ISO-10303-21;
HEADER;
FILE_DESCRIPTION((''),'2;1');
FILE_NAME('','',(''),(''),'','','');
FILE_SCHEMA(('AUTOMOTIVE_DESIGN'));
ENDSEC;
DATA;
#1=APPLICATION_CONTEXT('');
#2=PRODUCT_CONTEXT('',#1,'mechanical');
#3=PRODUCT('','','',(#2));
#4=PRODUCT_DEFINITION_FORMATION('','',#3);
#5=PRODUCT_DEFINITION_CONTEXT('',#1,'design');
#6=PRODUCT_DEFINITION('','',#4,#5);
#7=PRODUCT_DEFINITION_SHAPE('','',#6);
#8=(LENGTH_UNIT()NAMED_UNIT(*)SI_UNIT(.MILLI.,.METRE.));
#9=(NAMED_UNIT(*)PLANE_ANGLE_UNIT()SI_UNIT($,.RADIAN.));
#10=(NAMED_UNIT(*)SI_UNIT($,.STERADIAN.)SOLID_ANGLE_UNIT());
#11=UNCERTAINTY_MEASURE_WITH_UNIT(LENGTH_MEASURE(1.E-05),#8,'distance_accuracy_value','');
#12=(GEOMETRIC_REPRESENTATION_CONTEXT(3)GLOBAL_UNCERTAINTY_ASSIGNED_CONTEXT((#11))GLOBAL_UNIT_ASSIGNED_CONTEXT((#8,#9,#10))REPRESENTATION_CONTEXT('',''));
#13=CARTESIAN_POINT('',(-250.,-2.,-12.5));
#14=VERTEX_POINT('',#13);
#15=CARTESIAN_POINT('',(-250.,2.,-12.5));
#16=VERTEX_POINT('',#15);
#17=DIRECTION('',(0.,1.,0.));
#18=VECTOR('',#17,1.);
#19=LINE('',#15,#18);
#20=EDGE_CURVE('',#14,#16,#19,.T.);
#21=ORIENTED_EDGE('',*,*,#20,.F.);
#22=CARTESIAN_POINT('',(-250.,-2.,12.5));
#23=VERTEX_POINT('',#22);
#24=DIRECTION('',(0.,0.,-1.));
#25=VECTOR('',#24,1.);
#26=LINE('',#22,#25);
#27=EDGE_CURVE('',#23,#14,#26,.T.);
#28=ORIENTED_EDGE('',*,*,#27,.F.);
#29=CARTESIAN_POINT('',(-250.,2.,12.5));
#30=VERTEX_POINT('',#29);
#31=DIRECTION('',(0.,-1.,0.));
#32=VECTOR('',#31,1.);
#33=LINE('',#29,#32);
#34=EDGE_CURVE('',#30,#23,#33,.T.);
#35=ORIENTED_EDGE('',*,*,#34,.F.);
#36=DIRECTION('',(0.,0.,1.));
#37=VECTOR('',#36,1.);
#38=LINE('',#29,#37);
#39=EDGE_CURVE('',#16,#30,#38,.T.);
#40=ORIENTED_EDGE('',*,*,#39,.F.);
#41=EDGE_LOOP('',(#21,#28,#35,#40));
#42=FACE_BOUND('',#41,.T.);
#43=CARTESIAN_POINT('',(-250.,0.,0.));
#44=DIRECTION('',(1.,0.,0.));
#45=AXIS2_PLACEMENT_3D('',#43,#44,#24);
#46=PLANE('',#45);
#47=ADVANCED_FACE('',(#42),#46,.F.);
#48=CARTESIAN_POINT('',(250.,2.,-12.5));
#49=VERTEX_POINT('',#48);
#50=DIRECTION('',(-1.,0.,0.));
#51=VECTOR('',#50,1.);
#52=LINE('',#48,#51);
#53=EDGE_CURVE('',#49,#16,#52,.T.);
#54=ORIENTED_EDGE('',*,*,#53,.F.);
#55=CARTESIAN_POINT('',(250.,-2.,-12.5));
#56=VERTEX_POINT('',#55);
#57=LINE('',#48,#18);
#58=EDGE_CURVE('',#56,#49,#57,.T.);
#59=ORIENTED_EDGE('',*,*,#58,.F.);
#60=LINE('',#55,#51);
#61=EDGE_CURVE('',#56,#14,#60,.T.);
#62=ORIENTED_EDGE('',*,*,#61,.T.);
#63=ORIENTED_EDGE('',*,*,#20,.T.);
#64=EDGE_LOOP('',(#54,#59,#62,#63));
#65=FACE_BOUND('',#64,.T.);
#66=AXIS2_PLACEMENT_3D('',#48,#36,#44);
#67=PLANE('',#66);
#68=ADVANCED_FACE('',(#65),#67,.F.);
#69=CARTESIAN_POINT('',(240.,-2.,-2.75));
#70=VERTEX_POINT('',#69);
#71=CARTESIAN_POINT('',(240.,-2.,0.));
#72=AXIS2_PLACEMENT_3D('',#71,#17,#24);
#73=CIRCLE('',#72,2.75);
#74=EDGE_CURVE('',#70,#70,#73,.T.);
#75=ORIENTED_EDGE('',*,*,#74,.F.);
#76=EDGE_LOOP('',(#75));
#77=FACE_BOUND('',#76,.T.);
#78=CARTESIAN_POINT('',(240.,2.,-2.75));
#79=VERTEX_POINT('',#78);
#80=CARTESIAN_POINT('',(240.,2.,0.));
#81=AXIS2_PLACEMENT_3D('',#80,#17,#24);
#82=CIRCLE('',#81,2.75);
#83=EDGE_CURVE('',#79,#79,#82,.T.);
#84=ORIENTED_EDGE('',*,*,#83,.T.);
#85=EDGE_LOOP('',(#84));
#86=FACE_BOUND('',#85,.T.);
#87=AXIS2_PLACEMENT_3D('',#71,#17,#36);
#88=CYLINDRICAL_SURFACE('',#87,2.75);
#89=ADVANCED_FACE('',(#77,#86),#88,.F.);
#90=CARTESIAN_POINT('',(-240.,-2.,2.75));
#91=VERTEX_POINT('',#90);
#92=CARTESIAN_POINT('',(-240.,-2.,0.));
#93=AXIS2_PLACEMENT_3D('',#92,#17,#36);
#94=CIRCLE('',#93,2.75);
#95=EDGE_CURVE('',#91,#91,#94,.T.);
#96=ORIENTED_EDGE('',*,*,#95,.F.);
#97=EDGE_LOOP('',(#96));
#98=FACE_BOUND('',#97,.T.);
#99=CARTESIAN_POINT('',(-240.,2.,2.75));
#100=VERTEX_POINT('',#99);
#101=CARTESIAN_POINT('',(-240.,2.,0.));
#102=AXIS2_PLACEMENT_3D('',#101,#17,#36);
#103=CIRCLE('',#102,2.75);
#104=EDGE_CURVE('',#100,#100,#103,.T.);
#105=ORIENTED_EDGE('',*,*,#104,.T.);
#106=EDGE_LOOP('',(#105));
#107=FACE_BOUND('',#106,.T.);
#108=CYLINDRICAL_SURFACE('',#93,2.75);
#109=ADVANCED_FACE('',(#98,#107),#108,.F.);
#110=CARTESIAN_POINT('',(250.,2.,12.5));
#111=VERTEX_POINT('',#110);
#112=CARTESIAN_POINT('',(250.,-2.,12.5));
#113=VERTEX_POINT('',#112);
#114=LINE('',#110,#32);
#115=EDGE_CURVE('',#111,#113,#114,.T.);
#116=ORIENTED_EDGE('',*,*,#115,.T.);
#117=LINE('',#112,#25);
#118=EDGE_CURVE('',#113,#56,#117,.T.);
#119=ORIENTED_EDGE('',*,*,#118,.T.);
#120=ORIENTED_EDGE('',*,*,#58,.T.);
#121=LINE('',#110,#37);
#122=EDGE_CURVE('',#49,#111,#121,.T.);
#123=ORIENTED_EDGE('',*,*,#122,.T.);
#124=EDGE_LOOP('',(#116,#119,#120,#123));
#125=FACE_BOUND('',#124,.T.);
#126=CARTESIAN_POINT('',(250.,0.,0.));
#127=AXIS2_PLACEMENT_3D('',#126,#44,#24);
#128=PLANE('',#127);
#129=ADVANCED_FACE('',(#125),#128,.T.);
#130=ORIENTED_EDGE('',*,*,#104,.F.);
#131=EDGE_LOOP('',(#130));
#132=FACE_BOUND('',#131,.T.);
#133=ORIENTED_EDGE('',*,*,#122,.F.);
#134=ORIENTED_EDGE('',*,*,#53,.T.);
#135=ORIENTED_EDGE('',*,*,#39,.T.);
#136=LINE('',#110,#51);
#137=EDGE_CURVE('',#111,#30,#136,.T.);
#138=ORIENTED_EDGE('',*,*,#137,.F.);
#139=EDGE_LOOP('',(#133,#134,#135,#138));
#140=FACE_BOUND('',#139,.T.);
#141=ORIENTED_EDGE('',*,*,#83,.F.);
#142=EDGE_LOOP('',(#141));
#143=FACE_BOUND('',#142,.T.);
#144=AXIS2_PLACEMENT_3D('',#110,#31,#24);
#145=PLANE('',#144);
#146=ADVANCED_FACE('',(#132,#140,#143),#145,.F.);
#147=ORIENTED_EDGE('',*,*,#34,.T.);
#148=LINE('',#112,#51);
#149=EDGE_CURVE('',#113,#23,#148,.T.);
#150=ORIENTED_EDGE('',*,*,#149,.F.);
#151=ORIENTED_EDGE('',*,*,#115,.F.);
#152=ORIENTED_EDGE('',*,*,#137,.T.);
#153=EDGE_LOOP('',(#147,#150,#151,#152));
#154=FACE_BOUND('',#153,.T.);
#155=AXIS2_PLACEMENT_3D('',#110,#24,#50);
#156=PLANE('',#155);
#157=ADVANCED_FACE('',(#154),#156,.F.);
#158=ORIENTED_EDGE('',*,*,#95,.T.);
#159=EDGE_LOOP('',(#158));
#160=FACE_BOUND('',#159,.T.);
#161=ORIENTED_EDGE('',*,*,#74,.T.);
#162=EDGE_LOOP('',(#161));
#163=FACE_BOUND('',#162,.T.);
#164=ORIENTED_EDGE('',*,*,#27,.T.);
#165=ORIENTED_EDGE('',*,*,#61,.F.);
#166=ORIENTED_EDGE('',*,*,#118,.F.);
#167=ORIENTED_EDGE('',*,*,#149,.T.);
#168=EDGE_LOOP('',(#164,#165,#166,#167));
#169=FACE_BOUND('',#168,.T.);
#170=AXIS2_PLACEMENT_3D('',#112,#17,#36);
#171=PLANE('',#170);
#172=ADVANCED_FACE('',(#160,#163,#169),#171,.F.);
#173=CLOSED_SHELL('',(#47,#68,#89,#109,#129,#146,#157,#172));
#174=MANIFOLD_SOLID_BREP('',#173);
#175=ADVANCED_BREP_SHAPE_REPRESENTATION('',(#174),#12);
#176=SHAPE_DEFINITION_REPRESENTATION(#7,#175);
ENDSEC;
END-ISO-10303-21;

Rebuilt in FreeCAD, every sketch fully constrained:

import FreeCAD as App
import Part
import Sketcher

V = App.Vector


def add_polygon(sketch, points):
    """Adds a closed chain of lines whose ends are joined by coincident constraints."""
    first, n = sketch.GeometryCount, len(points)
    for a, b in zip(points, points[1:] + points[:1]):
        sketch.addGeometry(Part.LineSegment(App.Vector(*a, 0), App.Vector(*b, 0)), False)
    for i in range(n):
        sketch.addConstraint(Sketcher.Constraint("Coincident", first + i, 2, first + (i + 1) % n, 1))

doc = App.newDocument("Part")
body = doc.addObject("PartDesign::Body", "Body")

sketch1 = body.newObject("Sketcher::SketchObject", "Sketch")
sketch1.AttachmentSupport = (doc.getObject("YZ_Plane"), [""])
sketch1.MapMode = "FlatFace"
add_polygon(sketch1, [(2, 12.5), (-2, 12.5), (-2, -12.5), (2, -12.5)])
sketch1.addConstraint([
    Sketcher.Constraint("Horizontal", 0),
    Sketcher.Constraint("Vertical", 1),
    Sketcher.Constraint("Horizontal", 2),
    Sketcher.Constraint("Vertical", 3),
    Sketcher.Constraint("Symmetric", 0, 2, 2, 2, -1, 1),
    Sketcher.Constraint("DistanceX", 0, 2, 0, 1, 4.0),
    Sketcher.Constraint("DistanceY", 1, 2, 1, 1, 25.0),
])
pad1 = body.newObject("PartDesign::Pad", "Pad")
pad1.Profile = sketch1
pad1.Length = 500
pad1.Midplane = True

sketch2 = body.newObject("Sketcher::SketchObject", "Sketch001")
sketch2.AttachmentSupport = (doc.getObject("XZ_Plane"), [""])
sketch2.MapMode = "FlatFace"
sketch2.AttachmentOffset = App.Placement(V(0, 0, -2), App.Rotation())
sketch2.addGeometry([
    Part.Circle(V(-240, 0, 0), V(0, 0, 1), 2.8),
    Part.Circle(V(240, 0, 0), V(0, 0, 1), 2.8),
], False)
sketch2.addConstraint([
    Sketcher.Constraint("Equal", 0, 1),
    Sketcher.Constraint("Symmetric", 0, 3, 1, 3, -1, 1),
    Sketcher.Constraint("PointOnObject", 0, 3, -1),
    Sketcher.Constraint("Diameter", 0, 5.5),
    Sketcher.Constraint("DistanceX", 0, 3, -1, 1, 240.0),
])
pocket1 = body.newObject("PartDesign::Pocket", "Pocket")
pocket1.Profile = sketch2
pocket1.Type = "ThroughAll"
pocket1.Reversed = True

doc.recompute()
